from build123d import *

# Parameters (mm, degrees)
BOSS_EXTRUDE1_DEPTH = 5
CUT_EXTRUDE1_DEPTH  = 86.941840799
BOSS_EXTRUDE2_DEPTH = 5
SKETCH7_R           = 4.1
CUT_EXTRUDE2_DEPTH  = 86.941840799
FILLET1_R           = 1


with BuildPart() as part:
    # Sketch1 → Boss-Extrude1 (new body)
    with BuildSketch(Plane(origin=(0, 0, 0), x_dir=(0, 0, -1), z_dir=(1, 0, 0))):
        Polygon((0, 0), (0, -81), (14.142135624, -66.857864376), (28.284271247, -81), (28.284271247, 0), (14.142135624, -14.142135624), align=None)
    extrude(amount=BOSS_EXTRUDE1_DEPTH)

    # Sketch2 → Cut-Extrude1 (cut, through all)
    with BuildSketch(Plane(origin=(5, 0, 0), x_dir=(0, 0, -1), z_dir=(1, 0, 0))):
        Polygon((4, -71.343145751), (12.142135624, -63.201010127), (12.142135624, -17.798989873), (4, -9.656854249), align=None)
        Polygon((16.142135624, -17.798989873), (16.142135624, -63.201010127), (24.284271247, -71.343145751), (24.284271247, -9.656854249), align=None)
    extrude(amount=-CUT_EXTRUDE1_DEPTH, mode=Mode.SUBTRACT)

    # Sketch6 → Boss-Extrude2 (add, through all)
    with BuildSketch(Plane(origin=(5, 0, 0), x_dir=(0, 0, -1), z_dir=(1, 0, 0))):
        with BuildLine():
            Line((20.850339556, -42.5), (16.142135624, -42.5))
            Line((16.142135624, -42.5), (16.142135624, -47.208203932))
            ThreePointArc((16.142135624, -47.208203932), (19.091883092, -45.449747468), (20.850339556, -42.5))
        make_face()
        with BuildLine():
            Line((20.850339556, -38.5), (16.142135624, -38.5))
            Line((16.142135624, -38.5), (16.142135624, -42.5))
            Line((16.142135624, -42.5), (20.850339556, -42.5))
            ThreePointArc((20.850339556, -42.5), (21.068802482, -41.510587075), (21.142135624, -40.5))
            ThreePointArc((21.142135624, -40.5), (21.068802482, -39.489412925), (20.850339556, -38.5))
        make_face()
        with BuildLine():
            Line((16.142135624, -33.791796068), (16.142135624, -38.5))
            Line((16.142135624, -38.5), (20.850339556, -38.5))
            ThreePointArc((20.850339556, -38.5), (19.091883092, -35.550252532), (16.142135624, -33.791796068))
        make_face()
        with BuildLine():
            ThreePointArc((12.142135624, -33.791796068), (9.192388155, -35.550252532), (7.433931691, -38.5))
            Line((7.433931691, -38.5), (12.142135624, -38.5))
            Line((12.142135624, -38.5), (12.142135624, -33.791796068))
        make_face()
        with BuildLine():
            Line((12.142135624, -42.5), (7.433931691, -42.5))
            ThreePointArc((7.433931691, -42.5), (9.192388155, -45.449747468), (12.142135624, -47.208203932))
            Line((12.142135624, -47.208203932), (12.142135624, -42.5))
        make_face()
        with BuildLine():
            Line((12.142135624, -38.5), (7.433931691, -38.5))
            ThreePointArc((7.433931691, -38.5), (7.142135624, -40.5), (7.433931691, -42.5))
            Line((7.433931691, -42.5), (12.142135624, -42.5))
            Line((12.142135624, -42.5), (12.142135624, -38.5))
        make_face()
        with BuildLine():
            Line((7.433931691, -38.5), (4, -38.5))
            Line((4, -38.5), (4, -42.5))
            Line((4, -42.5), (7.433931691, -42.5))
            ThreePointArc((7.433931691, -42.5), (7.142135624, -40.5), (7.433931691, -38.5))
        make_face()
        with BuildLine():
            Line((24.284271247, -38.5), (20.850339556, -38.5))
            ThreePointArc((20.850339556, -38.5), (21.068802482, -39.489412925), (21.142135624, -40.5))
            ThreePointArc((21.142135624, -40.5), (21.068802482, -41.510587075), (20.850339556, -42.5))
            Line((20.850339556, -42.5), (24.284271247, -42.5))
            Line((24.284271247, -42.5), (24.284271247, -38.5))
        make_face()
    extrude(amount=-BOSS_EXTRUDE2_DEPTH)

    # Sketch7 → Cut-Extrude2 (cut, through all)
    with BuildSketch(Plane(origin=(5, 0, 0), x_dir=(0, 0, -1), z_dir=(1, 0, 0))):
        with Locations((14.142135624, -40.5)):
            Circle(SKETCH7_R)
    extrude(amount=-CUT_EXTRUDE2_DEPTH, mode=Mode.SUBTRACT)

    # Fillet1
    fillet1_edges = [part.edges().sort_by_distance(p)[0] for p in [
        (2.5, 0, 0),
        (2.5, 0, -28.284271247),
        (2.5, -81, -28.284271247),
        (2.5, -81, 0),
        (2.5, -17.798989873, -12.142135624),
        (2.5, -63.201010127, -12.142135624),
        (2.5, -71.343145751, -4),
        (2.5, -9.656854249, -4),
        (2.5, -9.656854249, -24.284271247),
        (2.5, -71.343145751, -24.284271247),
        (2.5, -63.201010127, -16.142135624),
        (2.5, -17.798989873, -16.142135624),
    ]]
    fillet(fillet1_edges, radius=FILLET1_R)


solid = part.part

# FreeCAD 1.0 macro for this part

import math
import FreeCAD as App
import Part
import Sketcher


def edges_at(feature, points):
    """Names of the edges that pass closest to the given points."""
    edges = feature.Shape.Edges
    near = lambda p: min(range(len(edges)), key=lambda i: edges[i].distToShape(Part.Vertex(*p))[0])
    return sorted({f"Edge{near(p) + 1}" for p in points})


def add_polygon(sketch, points):
    """Adds a closed chain of lines whose ends are joined by coincident constraints."""
    first, n = sketch.GeometryCount, len(points)
    for a, b in zip(points, points[1:] + points[:1]):
        sketch.addGeometry(Part.LineSegment(App.Vector(*a, 0), App.Vector(*b, 0)), False)
    for i in range(n):
        sketch.addConstraint(Sketcher.Constraint("Coincident", first + i, 2, first + (i + 1) % n, 1))

doc = App.newDocument("Part")
body = doc.addObject("PartDesign::Body", "Body")

# Sketch on YZ plane
sketch1 = body.newObject("Sketcher::SketchObject", "Sketch")
sketch1.AttachmentSupport = (doc.getObject("YZ_Plane"), [""])
sketch1.MapMode = "FlatFace"
add_polygon(sketch1, [(0, 0), (-81, 0), (-67, -14), (-81, -28), (0, -28), (-14, -14)])  # lines 0-5
sketch1.addConstraint([
    Sketcher.Constraint("Horizontal", 0),
    Sketcher.Constraint("Horizontal", 3),
    Sketcher.Constraint("Coincident", 5, 2, -1, 1),
    Sketcher.Constraint("PointOnObject", 3, 2, -2),
    Sketcher.Constraint("Perpendicular", 1, 2),
    Sketcher.Constraint("Perpendicular", 2, 4),
    Sketcher.Constraint("Perpendicular", 4, 5),
    Sketcher.Constraint("Horizontal", 1, 2, 4, 2),
    Sketcher.Constraint("Vertical", 0, 2, 2, 2),
    Sketcher.Constraint("DistanceX", 0, 2, 0, 1, 81.0),
    Sketcher.Constraint("Distance", 1, 20.0),
])
pad1 = body.newObject("PartDesign::Pad", "Pad")
pad1.Profile = sketch1
pad1.Length = 5

# Sketch on YZ plane
sketch2 = body.newObject("Sketcher::SketchObject", "Sketch001")
sketch2.AttachmentSupport = (doc.getObject("YZ_Plane"), [""])
sketch2.MapMode = "FlatFace"
sketch2.AttachmentOffset = App.Placement(App.Vector(0, 0, 5), App.Rotation())
add_polygon(sketch2, [(-71, -4), (-63, -12), (-18, -12), (-10, -4)])  # lines 0-3
add_polygon(sketch2, [(-18, -16), (-63, -16), (-71, -24), (-10, -24)])  # lines 4-7
sketch2.addConstraint([
    Sketcher.Constraint("Horizontal", 1),
    Sketcher.Constraint("Horizontal", 3),
    Sketcher.Constraint("Horizontal", 4),
    Sketcher.Constraint("Horizontal", 6),
    Sketcher.Constraint("Perpendicular", 0, 2),
    Sketcher.Constraint("Parallel", 2, 5),
    Sketcher.Constraint("Perpendicular", 5, 7),
    Sketcher.Constraint("Vertical", 0, 2, 4, 2),
    Sketcher.Constraint("Vertical", 3, 2, 5, 2),
    Sketcher.Constraint("Vertical", 2, 2, 6, 2),
    Sketcher.Constraint("Vertical", 1, 2, 7, 2),
    Sketcher.Constraint("DistanceY", 2, 2, -1, 1, 4.0),
    Sketcher.Constraint("DistanceY", 4, 2, 0, 2, 4.0),
    Sketcher.Constraint("DistanceX", 1, 1, 1, 2, 45.40202),
    Sketcher.Constraint("DistanceX", 3, 2, 3, 1, 61.686292),
    Sketcher.Constraint("DistanceX", 0, 2, -1, 1, 63.20101),
])
pocket1 = body.newObject("PartDesign::Pocket", "Pocket")
pocket1.Profile = sketch2
pocket1.Type = "ThroughAll"

# Sketch on YZ plane
sketch3 = body.newObject("Sketcher::SketchObject", "Sketch002")
sketch3.AttachmentSupport = (doc.getObject("YZ_Plane"), [""])
sketch3.MapMode = "FlatFace"
sketch3.AttachmentOffset = App.Placement(App.Vector(0, 0, 5), App.Rotation())
sketch3.addGeometry([
    Part.ArcOfCircle(Part.Circle(App.Vector(-40.5, -14.1, 0), App.Vector(0, 0, 1), 7), math.radians(-163), math.radians(-107)),  # 0
    Part.LineSegment(App.Vector(-42.5, -20.9, 0), App.Vector(-42.5, -24.3, 0)),  # 1
    Part.LineSegment(App.Vector(-42.5, -24.3, 0), App.Vector(-38.5, -24.3, 0)),  # 2
    Part.LineSegment(App.Vector(-38.5, -24.3, 0), App.Vector(-38.5, -20.9, 0)),  # 3
    Part.ArcOfCircle(Part.Circle(App.Vector(-40.5, -14.1, 0), App.Vector(0, 0, 1), 7), math.radians(-73), math.radians(-17)),  # 4
    Part.LineSegment(App.Vector(-33.8, -16.1, 0), App.Vector(-47.2, -16.1, 0)),  # 5
    Part.ArcOfCircle(Part.Circle(App.Vector(-40.5, -14.1, 0), App.Vector(0, 0, 1), 7), math.radians(17), math.radians(73)),  # 6
    Part.LineSegment(App.Vector(-38.5, -7.4, 0), App.Vector(-38.5, -4, 0)),  # 7
    Part.LineSegment(App.Vector(-38.5, -4, 0), App.Vector(-42.5, -4, 0)),  # 8
    Part.LineSegment(App.Vector(-42.5, -4, 0), App.Vector(-42.5, -7.4, 0)),  # 9
    Part.ArcOfCircle(Part.Circle(App.Vector(-40.5, -14.1, 0), App.Vector(0, 0, 1), 7), math.radians(107), math.radians(163)),  # 10
    Part.LineSegment(App.Vector(-47.2, -12.1, 0), App.Vector(-33.8, -12.1, 0)),  # 11
], False)
sketch3.addConstraint([
    Sketcher.Constraint("Coincident", 0, 2, 1, 1),
    Sketcher.Constraint("Coincident", 1, 2, 2, 1),
    Sketcher.Constraint("Coincident", 2, 2, 3, 1),
    Sketcher.Constraint("Coincident", 3, 2, 4, 1),
    Sketcher.Constraint("Coincident", 4, 2, 5, 1),
    Sketcher.Constraint("Coincident", 5, 2, 0, 1),
    Sketcher.Constraint("Coincident", 6, 2, 7, 1),
    Sketcher.Constraint("Coincident", 7, 2, 8, 1),
    Sketcher.Constraint("Coincident", 8, 2, 9, 1),
    Sketcher.Constraint("Coincident", 9, 2, 10, 1),
    Sketcher.Constraint("Coincident", 10, 2, 11, 1),
    Sketcher.Constraint("Coincident", 11, 2, 6, 1),
    Sketcher.Constraint("Vertical", 1),
    Sketcher.Constraint("Horizontal", 2),
    Sketcher.Constraint("Vertical", 3),
    Sketcher.Constraint("Horizontal", 5),
    Sketcher.Constraint("Vertical", 7),
    Sketcher.Constraint("Horizontal", 8),
    Sketcher.Constraint("Vertical", 9),
    Sketcher.Constraint("Horizontal", 11),
    Sketcher.Constraint("Coincident", 4, 3, 0, 3),
    Sketcher.Constraint("Coincident", 6, 3, 0, 3),
    Sketcher.Constraint("Coincident", 10, 3, 0, 3),
    Sketcher.Constraint("Equal", 0, 4),
    Sketcher.Constraint("Equal", 4, 6),
    Sketcher.Constraint("Equal", 6, 10),
    Sketcher.Constraint("Horizontal", 0, 2, 3, 2),
    Sketcher.Constraint("Horizontal", 6, 2, 9, 2),
    Sketcher.Constraint("Vertical", 3, 2, 6, 2),
    Sketcher.Constraint("Vertical", 5, 2, 10, 2),
    Sketcher.Constraint("Equal", 3, 7),
    Sketcher.Constraint("Radius", 0, 7.0),
    Sketcher.Constraint("DistanceX", 2, 1, 2, 2, 4.0),
    Sketcher.Constraint("DistanceY", 7, 2, -1, 1, 4.0),
    Sketcher.Constraint("DistanceY", 4, 2, 6, 3, 2.0),
    Sketcher.Constraint("DistanceX", 0, 3, -1, 1, 40.5),
    Sketcher.Constraint("DistanceY", 1, 2, 1, 1, 3.433932),
])
pad2 = body.newObject("PartDesign::Pad", "Pad001")
pad2.Profile = sketch3
pad2.Type = "UpToLast"
pad2.Reversed = True

# Sketch on YZ plane
sketch4 = body.newObject("Sketcher::SketchObject", "Sketch003")
sketch4.AttachmentSupport = (doc.getObject("YZ_Plane"), [""])
sketch4.MapMode = "FlatFace"
sketch4.AttachmentOffset = App.Placement(App.Vector(0, 0, 5), App.Rotation())
sketch4.addGeometry(Part.Circle(App.Vector(-40.5, -14.1, 0), App.Vector(0, 0, 1), 4.1), False)
sketch4.addConstraint([
    Sketcher.Constraint("Diameter", 0, 8.2),
    Sketcher.Constraint("DistanceX", 0, 3, -1, 1, 40.5),
    Sketcher.Constraint("DistanceY", 0, 3, -1, 1, 14.142136),
])
pocket2 = body.newObject("PartDesign::Pocket", "Pocket001")
pocket2.Profile = sketch4
pocket2.Type = "ThroughAll"
doc.recompute()

fillet = body.newObject("PartDesign::Fillet", "Fillet")
fillet.Base = (pocket2, edges_at(pocket2, [
    (2.5, 0, 0),
    (2.5, 0, -28.284),
    (2.5, -81, -28.284),
    (2.5, -81, 0),
    (2.5, -17.799, -12.142),
    (2.5, -63.201, -12.142),
    (2.5, -71.343, -4),
    (2.5, -9.657, -4),
    (2.5, -9.657, -24.284),
    (2.5, -71.343, -24.284),
    (2.5, -63.201, -16.142),
    (2.5, -17.799, -16.142),
]))
fillet.Radius = 1

doc.recompute()
